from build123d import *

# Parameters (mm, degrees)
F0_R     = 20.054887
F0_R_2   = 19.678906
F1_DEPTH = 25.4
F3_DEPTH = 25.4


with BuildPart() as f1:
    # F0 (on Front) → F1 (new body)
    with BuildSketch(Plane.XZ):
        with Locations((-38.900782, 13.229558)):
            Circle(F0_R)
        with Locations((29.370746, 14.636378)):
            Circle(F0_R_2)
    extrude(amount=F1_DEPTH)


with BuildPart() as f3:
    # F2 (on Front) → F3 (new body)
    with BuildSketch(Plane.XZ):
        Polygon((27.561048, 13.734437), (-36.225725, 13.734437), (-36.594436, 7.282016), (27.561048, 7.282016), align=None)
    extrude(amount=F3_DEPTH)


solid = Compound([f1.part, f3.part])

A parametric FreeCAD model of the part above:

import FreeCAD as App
import Part
import Sketcher
from FreeCAD import Vector
Q = App.Units.Quantity


def add_polygon(sketch, points):
    """Adds a closed chain of lines whose ends are joined by coincident constraints."""
    first, n = sketch.GeometryCount, len(points)
    for a, b in zip(points, points[1:] + points[:1]):
        sketch.addGeometry(Part.LineSegment(App.Vector(*a, 0), App.Vector(*b, 0)), False)
    for i in range(n):
        sketch.addConstraint(Sketcher.Constraint("Coincident", first + i, 2, first + (i + 1) % n, 1))

doc = App.newDocument("Part")
body = doc.addObject("PartDesign::Body", "Body")
body.AllowCompound = True

sketch1 = doc.addObject("Sketcher::SketchObject", "Sketch")
body.addObject(sketch1)
sketch1.AttachmentSupport = (doc.XZ_Plane, [""])
sketch1.MapMode = "FlatFace"
sketch1.addGeometry([
    Part.Circle(Vector(-39, 13, 0), Vector(0, 0, 1), 20),
    Part.Circle(Vector(29, 15, 0), Vector(0, 0, 1), 20),
], False)
sketch1.addConstraint([
    Sketcher.Constraint("Diameter", 0, 40.109774),
    Sketcher.Constraint("Diameter", 1, 39.357812),
    Sketcher.Constraint("DistanceY", -1, 1, 0, 3, 13.229558),
    Sketcher.Constraint("DistanceX", 0, 3, 1, 3, 68.271528),
    Sketcher.Constraint("DistanceY", 0, 3, 1, 3, 1.40682),
    Sketcher.Constraint("DistanceX", 0, 3, -1, 1, 38.900782),
])
pad1 = doc.addObject("PartDesign::Pad", "Pad")
body.addObject(pad1)
pad1.Profile = sketch1
pad1.Length = Q("1 in")
body2 = doc.addObject("PartDesign::Body", "Body001")

sketch2 = doc.addObject("Sketcher::SketchObject", "Sketch001")
body2.addObject(sketch2)
sketch2.AttachmentSupport = (doc.getObject("XZ_Plane001"), [""])
sketch2.MapMode = "FlatFace"
add_polygon(sketch2, [(28, 14), (-36, 14), (-37, 7), (28, 7)])
sketch2.addConstraint([
    Sketcher.Constraint("Horizontal", 0),
    Sketcher.Constraint("Horizontal", 2),
    Sketcher.Constraint("Vertical", 3),
    Sketcher.Constraint("DistanceY", 3, 1, 3, 2, 6.452421),
    Sketcher.Constraint("DistanceX", 0, 2, 0, 1, 63.786773),
    Sketcher.Constraint("DistanceX", 2, 1, 2, 2, 64.155484),
    Sketcher.Constraint("DistanceX", 0, 2, -1, 1, 36.225725),
    Sketcher.Constraint("DistanceY", -1, 1, 0, 2, 13.734437),
])
pad2 = doc.addObject("PartDesign::Pad", "Pad001")
body2.addObject(pad2)
pad2.Profile = sketch2
pad2.Length = Q("1 in")

doc.recompute()
